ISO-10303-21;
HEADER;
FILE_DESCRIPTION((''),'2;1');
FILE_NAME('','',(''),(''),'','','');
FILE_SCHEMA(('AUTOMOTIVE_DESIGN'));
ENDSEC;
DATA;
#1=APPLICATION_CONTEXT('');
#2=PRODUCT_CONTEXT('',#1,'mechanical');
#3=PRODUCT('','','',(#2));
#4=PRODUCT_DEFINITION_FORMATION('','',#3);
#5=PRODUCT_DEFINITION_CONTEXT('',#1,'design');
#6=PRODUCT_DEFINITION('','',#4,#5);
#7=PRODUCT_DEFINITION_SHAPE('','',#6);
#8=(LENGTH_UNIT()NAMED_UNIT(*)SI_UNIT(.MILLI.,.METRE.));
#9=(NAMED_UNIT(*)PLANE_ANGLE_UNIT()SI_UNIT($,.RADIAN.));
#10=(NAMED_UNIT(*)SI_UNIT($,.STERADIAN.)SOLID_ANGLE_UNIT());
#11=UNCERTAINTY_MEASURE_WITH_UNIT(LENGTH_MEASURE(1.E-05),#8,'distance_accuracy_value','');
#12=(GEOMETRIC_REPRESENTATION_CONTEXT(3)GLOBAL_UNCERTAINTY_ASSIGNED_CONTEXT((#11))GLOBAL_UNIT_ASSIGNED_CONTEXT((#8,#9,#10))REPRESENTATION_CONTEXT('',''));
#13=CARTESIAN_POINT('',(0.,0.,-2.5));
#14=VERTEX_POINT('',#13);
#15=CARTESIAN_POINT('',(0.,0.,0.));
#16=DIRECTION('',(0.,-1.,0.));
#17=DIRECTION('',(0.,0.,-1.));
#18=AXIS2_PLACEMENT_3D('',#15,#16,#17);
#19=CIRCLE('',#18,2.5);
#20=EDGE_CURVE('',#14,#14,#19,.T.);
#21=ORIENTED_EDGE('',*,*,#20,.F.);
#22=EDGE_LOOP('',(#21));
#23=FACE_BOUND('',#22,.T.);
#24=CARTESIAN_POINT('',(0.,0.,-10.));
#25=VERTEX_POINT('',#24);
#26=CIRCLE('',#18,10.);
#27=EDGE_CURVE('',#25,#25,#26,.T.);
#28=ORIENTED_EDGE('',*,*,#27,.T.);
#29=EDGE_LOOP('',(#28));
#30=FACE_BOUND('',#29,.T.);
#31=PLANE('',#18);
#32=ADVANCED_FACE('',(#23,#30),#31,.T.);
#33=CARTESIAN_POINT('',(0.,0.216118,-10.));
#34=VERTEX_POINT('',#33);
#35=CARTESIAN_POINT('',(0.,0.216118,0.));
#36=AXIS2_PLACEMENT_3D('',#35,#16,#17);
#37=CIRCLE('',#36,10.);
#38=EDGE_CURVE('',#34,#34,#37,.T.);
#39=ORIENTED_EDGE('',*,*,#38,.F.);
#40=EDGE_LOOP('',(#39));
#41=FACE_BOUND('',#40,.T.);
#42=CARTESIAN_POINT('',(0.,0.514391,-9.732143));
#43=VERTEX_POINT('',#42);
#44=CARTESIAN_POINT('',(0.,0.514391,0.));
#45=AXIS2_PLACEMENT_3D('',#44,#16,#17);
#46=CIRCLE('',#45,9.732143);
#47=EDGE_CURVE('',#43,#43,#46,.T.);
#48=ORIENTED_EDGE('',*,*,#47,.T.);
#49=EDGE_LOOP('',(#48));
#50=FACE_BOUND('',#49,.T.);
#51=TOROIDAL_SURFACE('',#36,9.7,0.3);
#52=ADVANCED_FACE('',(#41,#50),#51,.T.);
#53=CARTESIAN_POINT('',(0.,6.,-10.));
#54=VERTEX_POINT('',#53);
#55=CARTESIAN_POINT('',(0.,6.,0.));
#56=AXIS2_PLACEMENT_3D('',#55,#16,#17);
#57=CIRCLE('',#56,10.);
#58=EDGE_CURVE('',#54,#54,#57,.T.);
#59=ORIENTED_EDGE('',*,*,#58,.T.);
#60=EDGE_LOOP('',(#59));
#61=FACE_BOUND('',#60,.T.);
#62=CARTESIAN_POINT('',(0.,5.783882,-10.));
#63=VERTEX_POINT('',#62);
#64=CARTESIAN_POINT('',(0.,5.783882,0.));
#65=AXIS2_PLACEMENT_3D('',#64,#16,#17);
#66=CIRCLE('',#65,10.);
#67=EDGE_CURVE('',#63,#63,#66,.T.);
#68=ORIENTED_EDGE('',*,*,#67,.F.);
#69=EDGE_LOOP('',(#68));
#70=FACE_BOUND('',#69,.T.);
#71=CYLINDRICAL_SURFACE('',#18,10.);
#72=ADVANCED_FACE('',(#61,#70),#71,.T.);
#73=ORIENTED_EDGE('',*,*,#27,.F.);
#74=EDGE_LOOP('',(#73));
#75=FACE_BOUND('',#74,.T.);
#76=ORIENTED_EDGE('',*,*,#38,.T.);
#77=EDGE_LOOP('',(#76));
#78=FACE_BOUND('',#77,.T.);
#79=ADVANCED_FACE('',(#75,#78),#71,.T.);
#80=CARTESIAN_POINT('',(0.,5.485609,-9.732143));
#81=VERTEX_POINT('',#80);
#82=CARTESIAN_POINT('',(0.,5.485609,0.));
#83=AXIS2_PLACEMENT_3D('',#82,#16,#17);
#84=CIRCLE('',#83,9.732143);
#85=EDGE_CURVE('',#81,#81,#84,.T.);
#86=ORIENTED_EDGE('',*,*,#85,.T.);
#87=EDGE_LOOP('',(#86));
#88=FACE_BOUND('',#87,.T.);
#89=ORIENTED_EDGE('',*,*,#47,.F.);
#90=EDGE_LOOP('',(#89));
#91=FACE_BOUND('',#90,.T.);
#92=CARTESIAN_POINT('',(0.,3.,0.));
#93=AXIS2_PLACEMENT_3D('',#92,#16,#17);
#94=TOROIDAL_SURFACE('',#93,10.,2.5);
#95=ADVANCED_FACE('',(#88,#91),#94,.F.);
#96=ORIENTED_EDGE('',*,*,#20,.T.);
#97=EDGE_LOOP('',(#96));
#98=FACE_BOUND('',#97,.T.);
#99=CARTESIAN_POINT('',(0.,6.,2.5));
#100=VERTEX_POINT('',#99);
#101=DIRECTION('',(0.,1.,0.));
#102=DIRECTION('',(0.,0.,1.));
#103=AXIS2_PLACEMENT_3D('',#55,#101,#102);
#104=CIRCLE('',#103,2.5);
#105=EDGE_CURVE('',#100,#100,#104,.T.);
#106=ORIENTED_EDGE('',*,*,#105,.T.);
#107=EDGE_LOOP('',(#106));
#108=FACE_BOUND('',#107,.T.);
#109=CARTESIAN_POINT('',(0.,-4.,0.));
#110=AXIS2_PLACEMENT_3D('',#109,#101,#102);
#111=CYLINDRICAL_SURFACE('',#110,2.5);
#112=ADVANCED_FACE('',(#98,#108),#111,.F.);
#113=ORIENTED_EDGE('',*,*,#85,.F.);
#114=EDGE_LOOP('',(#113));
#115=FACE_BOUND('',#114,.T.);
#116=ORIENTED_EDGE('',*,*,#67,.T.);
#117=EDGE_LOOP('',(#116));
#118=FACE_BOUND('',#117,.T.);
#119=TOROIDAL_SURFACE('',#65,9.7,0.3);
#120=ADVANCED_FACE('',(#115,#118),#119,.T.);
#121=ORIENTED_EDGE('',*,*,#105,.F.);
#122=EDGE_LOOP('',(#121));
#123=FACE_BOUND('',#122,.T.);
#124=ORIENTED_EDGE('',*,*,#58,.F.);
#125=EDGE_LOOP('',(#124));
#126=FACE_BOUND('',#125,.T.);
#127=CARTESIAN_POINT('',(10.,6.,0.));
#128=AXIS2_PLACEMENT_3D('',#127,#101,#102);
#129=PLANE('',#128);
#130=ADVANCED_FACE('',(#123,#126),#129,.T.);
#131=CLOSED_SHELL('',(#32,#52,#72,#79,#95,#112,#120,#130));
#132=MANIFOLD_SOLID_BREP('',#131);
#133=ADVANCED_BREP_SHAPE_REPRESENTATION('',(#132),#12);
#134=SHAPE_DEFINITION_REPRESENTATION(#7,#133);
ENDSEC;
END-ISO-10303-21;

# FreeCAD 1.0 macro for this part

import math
import FreeCAD as App
import Part
import Sketcher

V = App.Vector
Q = App.Units.Quantity

doc = App.newDocument("Part")
body = doc.addObject("PartDesign::Body", "Body")

sketch1 = doc.addObject("Sketcher::SketchObject", "Sketch")
body.addObject(sketch1)
sketch1.AttachmentSupport = (doc.XY_Plane, [""])
sketch1.MapMode = "FlatFace"
sketch1.addGeometry([
    Part.LineSegment(V(0, 0, 0), V(10, 0, 0)),
    Part.LineSegment(V(10, 0, 0), V(10, 0.22, 0)),
    Part.ArcOfCircle(Part.Circle(V(9.7, 0.22, 0), V(0, 0, 1), 0.3), math.radians(0), math.radians(84)),
    Part.ArcOfCircle(Part.Circle(V(10, 3, 0), V(0, 0, 1), 2.5), math.radians(96), math.radians(264)),
    Part.ArcOfCircle(Part.Circle(V(9.7, 5.78, 0), V(0, 0, 1), 0.3), math.radians(-84), math.radians(0)),
    Part.LineSegment(V(10, 5.78, 0), V(10, 6, 0)),
    Part.LineSegment(V(10, 6, 0), V(0, 6, 0)),
    Part.LineSegment(V(0, 6, 0), V(0, 0, 0)),
], False)
sketch1.addConstraint([
    Sketcher.Constraint("Coincident", 0, 2, 1, 1),
    Sketcher.Constraint("Tangent", 1, 2, 2, 1),
    Sketcher.Constraint("Tangent", 2, 2, 3, 2),
    Sketcher.Constraint("Tangent", 3, 1, 4, 1),
    Sketcher.Constraint("Tangent", 4, 2, 5, 1),
    Sketcher.Constraint("Coincident", 5, 2, 6, 1),
    Sketcher.Constraint("Coincident", 6, 2, 7, 1),
    Sketcher.Constraint("Coincident", 7, 2, 0, 1),
    Sketcher.Constraint("Horizontal", 0),
    Sketcher.Constraint("Vertical", 1),
    Sketcher.Constraint("Vertical", 5),
    Sketcher.Constraint("Horizontal", 6),
    Sketcher.Constraint("Vertical", 7),
    Sketcher.Constraint("Coincident", 7, 2, -1, 1),
    Sketcher.Constraint("Equal", 2, 4),
    Sketcher.Constraint("Vertical", 2, 3, 4, 3),
    Sketcher.Constraint("Vertical", 3, 3, 0, 2),
    Sketcher.Constraint("Equal", 1, 5),
    Sketcher.Constraint("Radius", 2, Q("0.3 mm")),
    Sketcher.Constraint("Radius", 3, Q("2.5 mm")),
    Sketcher.Constraint("DistanceX", 0, 1, 0, 2, Q("10 mm")),
    Sketcher.Constraint("DistanceY", 7, 2, 7, 1, Q("6 mm")),
])
revolution = doc.addObject("PartDesign::Revolution", "Revolution")
body.addObject(revolution)
revolution.Profile = sketch1
revolution.ReferenceAxis = (sketch1, ["V_Axis"])
revolution.Angle = 360

sketch2 = doc.addObject("Sketcher::SketchObject", "Sketch001")
body.addObject(sketch2)
sketch2.AttachmentSupport = (doc.XZ_Plane, [""])
sketch2.MapMode = "FlatFace"
sketch2.AttachmentOffset = App.Placement(V(0, 0, -6), App.Rotation())
sketch2.addGeometry(Part.Circle(V(0, 0, 0), V(0, 0, 1), 2.5), False)
sketch2.addConstraint([
    Sketcher.Constraint("Coincident", 0, 3, -1, 1),
    Sketcher.Constraint("Diameter", 0, Q("5 mm")),
])
pocket1 = doc.addObject("PartDesign::Pocket", "Pocket")
body.addObject(pocket1)
pocket1.Profile = sketch2
pocket1.Length = 10
pocket1.Reversed = True

doc.recompute()
